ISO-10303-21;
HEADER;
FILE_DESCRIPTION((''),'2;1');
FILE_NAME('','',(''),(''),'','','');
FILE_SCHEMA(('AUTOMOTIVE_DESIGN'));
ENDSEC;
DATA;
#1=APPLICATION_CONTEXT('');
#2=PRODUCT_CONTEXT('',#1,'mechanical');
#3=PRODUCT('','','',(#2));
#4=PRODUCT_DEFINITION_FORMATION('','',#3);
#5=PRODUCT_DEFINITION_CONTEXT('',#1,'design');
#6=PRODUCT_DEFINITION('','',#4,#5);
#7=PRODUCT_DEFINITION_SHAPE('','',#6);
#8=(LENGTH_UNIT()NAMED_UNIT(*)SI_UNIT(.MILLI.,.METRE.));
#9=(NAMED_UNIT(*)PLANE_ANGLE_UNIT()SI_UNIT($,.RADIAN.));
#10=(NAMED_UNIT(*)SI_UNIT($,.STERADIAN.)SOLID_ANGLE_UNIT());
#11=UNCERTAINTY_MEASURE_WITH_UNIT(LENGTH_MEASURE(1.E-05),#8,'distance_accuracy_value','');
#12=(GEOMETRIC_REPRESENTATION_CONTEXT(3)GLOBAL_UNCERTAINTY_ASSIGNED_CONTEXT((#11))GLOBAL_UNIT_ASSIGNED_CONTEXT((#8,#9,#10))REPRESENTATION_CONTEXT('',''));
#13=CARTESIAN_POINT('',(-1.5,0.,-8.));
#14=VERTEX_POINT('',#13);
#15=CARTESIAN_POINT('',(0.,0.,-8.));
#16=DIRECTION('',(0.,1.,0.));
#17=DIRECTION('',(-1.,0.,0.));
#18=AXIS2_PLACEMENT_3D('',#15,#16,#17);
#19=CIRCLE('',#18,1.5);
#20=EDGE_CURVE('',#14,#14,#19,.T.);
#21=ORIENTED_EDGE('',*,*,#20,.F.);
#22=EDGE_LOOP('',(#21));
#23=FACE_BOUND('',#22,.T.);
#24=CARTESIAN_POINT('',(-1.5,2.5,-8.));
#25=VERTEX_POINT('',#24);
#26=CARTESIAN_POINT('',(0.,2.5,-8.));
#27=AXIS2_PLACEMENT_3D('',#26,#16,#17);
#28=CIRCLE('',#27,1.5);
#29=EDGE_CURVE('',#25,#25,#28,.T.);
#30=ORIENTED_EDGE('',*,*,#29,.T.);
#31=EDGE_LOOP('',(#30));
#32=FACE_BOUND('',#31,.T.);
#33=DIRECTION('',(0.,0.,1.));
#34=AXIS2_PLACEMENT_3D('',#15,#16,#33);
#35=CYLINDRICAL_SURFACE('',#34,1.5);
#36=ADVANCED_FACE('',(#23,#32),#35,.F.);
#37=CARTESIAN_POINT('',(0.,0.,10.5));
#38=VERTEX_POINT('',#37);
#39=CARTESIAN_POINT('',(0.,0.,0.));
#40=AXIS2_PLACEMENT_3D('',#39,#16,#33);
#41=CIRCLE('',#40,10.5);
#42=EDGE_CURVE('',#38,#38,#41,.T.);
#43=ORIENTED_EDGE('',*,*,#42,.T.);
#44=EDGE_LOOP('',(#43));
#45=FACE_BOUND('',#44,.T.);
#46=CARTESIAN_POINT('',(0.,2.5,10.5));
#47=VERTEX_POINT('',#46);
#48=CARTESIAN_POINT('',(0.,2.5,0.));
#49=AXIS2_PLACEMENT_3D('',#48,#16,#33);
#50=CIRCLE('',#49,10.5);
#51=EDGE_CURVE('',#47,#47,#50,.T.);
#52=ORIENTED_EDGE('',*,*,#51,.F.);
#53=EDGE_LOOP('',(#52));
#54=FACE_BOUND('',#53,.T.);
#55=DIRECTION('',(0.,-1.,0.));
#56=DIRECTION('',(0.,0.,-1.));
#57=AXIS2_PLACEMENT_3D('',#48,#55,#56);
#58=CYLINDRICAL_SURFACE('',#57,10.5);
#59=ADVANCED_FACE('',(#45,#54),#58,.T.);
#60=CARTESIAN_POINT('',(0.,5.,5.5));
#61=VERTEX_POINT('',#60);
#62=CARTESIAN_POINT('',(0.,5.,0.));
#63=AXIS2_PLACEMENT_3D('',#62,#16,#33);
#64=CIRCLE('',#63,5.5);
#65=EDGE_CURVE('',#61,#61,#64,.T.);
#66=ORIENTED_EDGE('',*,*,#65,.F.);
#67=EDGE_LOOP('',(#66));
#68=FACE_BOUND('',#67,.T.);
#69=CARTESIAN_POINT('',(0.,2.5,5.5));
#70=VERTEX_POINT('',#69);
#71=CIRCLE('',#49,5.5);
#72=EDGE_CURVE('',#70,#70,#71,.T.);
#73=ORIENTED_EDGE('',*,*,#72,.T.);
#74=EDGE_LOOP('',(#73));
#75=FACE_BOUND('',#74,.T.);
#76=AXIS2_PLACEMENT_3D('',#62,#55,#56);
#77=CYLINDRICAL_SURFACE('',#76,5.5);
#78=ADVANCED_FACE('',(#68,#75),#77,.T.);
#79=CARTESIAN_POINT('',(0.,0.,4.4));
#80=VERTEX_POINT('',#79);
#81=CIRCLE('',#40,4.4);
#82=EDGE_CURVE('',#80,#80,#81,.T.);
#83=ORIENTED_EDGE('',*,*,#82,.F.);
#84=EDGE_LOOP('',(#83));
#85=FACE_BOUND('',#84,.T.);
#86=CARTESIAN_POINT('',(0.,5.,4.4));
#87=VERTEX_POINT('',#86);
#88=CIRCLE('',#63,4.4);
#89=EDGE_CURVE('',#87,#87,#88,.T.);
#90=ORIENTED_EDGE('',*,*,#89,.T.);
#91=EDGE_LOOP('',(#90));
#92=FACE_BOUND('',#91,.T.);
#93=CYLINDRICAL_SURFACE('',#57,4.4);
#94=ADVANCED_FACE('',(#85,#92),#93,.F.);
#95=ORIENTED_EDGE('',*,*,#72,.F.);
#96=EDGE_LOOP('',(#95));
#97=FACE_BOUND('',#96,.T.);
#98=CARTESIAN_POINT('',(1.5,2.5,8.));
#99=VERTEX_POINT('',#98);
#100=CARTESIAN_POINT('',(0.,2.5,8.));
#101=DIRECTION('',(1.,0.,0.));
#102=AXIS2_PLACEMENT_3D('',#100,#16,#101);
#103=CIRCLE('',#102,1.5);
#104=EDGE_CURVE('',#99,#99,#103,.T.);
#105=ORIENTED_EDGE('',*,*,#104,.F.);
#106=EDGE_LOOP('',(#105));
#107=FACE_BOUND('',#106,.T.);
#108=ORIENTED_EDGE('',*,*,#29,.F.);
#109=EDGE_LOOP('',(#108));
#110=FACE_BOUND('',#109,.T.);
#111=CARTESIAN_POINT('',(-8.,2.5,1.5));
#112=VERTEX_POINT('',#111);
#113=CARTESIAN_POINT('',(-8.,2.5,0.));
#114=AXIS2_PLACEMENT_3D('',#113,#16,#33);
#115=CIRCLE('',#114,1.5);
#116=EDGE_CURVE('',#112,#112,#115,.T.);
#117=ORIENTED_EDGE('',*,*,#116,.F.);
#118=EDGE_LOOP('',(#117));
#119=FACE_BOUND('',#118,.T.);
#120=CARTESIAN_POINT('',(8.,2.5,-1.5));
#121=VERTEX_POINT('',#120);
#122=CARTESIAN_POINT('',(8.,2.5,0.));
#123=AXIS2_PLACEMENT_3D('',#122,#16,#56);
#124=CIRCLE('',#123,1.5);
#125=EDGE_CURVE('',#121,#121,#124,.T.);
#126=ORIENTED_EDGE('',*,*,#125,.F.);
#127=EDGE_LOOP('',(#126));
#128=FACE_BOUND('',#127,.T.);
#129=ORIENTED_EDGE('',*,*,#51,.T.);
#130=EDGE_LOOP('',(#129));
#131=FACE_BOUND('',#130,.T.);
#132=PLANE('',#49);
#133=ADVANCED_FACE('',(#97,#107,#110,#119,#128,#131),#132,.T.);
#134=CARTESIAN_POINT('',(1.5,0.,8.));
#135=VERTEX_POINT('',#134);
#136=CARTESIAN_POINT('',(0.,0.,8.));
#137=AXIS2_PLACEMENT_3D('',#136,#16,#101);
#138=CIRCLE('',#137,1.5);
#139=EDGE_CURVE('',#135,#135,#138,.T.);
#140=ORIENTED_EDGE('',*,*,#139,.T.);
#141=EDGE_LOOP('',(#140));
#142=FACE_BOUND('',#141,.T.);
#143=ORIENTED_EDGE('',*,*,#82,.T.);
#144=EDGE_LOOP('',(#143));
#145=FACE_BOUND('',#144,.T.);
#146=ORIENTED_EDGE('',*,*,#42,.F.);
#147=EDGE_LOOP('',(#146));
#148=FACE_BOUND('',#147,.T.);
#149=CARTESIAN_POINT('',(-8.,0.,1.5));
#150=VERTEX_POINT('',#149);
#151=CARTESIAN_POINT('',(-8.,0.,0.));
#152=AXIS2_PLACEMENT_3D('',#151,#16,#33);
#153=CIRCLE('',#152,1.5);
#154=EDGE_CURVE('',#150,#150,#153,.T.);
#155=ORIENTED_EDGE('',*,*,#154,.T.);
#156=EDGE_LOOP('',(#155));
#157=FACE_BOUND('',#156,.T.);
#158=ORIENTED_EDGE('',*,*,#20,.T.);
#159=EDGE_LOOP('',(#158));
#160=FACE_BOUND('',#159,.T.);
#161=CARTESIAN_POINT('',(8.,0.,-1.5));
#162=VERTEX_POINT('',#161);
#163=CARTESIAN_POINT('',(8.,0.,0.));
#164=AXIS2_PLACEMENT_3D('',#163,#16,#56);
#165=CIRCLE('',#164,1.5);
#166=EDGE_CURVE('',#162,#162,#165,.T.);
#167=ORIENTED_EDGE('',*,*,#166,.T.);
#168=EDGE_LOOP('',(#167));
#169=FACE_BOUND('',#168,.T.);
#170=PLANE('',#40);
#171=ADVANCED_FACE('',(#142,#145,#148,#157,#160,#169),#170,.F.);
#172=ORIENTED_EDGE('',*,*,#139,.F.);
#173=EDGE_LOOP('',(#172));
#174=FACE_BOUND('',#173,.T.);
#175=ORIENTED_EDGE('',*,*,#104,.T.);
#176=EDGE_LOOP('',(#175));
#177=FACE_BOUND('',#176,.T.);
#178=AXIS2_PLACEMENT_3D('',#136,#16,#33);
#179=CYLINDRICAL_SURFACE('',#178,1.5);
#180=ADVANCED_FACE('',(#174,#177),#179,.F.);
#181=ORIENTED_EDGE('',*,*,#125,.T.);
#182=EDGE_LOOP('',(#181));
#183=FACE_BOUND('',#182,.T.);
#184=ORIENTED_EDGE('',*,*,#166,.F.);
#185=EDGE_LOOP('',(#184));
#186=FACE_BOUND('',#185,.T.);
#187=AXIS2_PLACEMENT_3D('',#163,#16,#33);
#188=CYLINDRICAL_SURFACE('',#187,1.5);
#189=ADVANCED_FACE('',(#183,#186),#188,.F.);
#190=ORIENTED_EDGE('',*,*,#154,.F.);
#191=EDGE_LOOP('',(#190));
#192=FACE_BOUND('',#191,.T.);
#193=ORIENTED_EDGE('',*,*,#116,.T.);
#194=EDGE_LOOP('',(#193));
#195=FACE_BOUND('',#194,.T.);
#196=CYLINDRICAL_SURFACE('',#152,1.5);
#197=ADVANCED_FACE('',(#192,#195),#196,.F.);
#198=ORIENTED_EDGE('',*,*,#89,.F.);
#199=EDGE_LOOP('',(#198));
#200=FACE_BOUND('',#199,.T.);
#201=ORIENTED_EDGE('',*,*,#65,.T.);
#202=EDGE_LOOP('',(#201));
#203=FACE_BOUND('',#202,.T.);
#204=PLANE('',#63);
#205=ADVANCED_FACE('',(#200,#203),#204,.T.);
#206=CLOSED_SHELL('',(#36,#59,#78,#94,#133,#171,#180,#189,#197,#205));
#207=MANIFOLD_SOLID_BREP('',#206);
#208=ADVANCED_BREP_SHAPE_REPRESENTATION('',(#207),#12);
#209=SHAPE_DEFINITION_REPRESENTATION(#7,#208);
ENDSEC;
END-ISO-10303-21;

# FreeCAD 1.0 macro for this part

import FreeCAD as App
import Part
import Sketcher
from FreeCAD import Vector

doc = App.newDocument("Part")
body = doc.addObject("PartDesign::Body", "Body")

# Sketch on XZ plane
sketch1 = body.newObject("Sketcher::SketchObject", "Sketch")
sketch1.AttachmentSupport = (doc.getObject("XZ_Plane"), [""])
sketch1.MapMode = "FlatFace"
sketch1.addGeometry(Part.Circle(Vector(0, 0, 0), Vector(0, 0, 1), 10.5), False)
sketch1.addGeometry(Part.Circle(Vector(0, 0, 0), Vector(0, 0, 1), 4.4), False)
sketch1.addConstraint(Sketcher.Constraint("Coincident", 0, 3, -1, 1))
sketch1.addConstraint(Sketcher.Constraint("Coincident", 1, 3, -1, 1))
sketch1.addConstraint(Sketcher.Constraint("Diameter", 0, 21.0))
sketch1.addConstraint(Sketcher.Constraint("Diameter", 1, 8.8))
pad1 = body.newObject("PartDesign::Pad", "Pad")
pad1.Profile = sketch1
pad1.Length = 2.5
pad1.Reversed = True

# Sketch on XZ plane
sketch2 = body.newObject("Sketcher::SketchObject", "Sketch001")
sketch2.AttachmentSupport = (doc.getObject("XZ_Plane"), [""])
sketch2.MapMode = "FlatFace"
sketch2.AttachmentOffset = App.Placement(Vector(0, 0, -2.5), App.Rotation())
sketch2.addGeometry(Part.Circle(Vector(0, 0, 0), Vector(0, 0, 1), 5.5), False)
sketch2.addGeometry(Part.Circle(Vector(0, 0, 0), Vector(0, 0, 1), 4.4), False)
sketch2.addConstraint(Sketcher.Constraint("Coincident", 0, 3, -1, 1))
sketch2.addConstraint(Sketcher.Constraint("Coincident", 1, 3, -1, 1))
sketch2.addConstraint(Sketcher.Constraint("Diameter", 0, 11.0))
sketch2.addConstraint(Sketcher.Constraint("Diameter", 1, 8.8))
pad2 = body.newObject("PartDesign::Pad", "Pad001")
pad2.Profile = sketch2
pad2.Length = 2.5
pad2.Reversed = True

# Sketch on XZ plane
sketch3 = body.newObject("Sketcher::SketchObject", "Sketch002")
sketch3.AttachmentSupport = (doc.getObject("XZ_Plane"), [""])
sketch3.MapMode = "FlatFace"
sketch3.AttachmentOffset = App.Placement(Vector(0, 0, -2.5), App.Rotation())
sketch3.addGeometry(Part.Circle(Vector(-8, 0, 0), Vector(0, 0, 1), 1.5), False)
sketch3.addConstraint(Sketcher.Constraint("PointOnObject", 0, 3, -1))
sketch3.addConstraint(Sketcher.Constraint("Diameter", 0, 3.0))
sketch3.addConstraint(Sketcher.Constraint("DistanceX", 0, 3, -1, 1, 8.0))
pocket1 = body.newObject("PartDesign::Pocket", "Pocket")
pocket1.Profile = sketch3
pocket1.Type = "ThroughAll"
pocket1.Reversed = True
doc.recompute()

polarpattern = body.newObject("PartDesign::PolarPattern", "PolarPattern")
polarpattern.Originals = [pocket1]
polarpattern.Axis = (doc.getObject("Y_Axis"), [""])
polarpattern.Angle = 360
polarpattern.Occurrences = 4
body.Tip = polarpattern

doc.recompute()
